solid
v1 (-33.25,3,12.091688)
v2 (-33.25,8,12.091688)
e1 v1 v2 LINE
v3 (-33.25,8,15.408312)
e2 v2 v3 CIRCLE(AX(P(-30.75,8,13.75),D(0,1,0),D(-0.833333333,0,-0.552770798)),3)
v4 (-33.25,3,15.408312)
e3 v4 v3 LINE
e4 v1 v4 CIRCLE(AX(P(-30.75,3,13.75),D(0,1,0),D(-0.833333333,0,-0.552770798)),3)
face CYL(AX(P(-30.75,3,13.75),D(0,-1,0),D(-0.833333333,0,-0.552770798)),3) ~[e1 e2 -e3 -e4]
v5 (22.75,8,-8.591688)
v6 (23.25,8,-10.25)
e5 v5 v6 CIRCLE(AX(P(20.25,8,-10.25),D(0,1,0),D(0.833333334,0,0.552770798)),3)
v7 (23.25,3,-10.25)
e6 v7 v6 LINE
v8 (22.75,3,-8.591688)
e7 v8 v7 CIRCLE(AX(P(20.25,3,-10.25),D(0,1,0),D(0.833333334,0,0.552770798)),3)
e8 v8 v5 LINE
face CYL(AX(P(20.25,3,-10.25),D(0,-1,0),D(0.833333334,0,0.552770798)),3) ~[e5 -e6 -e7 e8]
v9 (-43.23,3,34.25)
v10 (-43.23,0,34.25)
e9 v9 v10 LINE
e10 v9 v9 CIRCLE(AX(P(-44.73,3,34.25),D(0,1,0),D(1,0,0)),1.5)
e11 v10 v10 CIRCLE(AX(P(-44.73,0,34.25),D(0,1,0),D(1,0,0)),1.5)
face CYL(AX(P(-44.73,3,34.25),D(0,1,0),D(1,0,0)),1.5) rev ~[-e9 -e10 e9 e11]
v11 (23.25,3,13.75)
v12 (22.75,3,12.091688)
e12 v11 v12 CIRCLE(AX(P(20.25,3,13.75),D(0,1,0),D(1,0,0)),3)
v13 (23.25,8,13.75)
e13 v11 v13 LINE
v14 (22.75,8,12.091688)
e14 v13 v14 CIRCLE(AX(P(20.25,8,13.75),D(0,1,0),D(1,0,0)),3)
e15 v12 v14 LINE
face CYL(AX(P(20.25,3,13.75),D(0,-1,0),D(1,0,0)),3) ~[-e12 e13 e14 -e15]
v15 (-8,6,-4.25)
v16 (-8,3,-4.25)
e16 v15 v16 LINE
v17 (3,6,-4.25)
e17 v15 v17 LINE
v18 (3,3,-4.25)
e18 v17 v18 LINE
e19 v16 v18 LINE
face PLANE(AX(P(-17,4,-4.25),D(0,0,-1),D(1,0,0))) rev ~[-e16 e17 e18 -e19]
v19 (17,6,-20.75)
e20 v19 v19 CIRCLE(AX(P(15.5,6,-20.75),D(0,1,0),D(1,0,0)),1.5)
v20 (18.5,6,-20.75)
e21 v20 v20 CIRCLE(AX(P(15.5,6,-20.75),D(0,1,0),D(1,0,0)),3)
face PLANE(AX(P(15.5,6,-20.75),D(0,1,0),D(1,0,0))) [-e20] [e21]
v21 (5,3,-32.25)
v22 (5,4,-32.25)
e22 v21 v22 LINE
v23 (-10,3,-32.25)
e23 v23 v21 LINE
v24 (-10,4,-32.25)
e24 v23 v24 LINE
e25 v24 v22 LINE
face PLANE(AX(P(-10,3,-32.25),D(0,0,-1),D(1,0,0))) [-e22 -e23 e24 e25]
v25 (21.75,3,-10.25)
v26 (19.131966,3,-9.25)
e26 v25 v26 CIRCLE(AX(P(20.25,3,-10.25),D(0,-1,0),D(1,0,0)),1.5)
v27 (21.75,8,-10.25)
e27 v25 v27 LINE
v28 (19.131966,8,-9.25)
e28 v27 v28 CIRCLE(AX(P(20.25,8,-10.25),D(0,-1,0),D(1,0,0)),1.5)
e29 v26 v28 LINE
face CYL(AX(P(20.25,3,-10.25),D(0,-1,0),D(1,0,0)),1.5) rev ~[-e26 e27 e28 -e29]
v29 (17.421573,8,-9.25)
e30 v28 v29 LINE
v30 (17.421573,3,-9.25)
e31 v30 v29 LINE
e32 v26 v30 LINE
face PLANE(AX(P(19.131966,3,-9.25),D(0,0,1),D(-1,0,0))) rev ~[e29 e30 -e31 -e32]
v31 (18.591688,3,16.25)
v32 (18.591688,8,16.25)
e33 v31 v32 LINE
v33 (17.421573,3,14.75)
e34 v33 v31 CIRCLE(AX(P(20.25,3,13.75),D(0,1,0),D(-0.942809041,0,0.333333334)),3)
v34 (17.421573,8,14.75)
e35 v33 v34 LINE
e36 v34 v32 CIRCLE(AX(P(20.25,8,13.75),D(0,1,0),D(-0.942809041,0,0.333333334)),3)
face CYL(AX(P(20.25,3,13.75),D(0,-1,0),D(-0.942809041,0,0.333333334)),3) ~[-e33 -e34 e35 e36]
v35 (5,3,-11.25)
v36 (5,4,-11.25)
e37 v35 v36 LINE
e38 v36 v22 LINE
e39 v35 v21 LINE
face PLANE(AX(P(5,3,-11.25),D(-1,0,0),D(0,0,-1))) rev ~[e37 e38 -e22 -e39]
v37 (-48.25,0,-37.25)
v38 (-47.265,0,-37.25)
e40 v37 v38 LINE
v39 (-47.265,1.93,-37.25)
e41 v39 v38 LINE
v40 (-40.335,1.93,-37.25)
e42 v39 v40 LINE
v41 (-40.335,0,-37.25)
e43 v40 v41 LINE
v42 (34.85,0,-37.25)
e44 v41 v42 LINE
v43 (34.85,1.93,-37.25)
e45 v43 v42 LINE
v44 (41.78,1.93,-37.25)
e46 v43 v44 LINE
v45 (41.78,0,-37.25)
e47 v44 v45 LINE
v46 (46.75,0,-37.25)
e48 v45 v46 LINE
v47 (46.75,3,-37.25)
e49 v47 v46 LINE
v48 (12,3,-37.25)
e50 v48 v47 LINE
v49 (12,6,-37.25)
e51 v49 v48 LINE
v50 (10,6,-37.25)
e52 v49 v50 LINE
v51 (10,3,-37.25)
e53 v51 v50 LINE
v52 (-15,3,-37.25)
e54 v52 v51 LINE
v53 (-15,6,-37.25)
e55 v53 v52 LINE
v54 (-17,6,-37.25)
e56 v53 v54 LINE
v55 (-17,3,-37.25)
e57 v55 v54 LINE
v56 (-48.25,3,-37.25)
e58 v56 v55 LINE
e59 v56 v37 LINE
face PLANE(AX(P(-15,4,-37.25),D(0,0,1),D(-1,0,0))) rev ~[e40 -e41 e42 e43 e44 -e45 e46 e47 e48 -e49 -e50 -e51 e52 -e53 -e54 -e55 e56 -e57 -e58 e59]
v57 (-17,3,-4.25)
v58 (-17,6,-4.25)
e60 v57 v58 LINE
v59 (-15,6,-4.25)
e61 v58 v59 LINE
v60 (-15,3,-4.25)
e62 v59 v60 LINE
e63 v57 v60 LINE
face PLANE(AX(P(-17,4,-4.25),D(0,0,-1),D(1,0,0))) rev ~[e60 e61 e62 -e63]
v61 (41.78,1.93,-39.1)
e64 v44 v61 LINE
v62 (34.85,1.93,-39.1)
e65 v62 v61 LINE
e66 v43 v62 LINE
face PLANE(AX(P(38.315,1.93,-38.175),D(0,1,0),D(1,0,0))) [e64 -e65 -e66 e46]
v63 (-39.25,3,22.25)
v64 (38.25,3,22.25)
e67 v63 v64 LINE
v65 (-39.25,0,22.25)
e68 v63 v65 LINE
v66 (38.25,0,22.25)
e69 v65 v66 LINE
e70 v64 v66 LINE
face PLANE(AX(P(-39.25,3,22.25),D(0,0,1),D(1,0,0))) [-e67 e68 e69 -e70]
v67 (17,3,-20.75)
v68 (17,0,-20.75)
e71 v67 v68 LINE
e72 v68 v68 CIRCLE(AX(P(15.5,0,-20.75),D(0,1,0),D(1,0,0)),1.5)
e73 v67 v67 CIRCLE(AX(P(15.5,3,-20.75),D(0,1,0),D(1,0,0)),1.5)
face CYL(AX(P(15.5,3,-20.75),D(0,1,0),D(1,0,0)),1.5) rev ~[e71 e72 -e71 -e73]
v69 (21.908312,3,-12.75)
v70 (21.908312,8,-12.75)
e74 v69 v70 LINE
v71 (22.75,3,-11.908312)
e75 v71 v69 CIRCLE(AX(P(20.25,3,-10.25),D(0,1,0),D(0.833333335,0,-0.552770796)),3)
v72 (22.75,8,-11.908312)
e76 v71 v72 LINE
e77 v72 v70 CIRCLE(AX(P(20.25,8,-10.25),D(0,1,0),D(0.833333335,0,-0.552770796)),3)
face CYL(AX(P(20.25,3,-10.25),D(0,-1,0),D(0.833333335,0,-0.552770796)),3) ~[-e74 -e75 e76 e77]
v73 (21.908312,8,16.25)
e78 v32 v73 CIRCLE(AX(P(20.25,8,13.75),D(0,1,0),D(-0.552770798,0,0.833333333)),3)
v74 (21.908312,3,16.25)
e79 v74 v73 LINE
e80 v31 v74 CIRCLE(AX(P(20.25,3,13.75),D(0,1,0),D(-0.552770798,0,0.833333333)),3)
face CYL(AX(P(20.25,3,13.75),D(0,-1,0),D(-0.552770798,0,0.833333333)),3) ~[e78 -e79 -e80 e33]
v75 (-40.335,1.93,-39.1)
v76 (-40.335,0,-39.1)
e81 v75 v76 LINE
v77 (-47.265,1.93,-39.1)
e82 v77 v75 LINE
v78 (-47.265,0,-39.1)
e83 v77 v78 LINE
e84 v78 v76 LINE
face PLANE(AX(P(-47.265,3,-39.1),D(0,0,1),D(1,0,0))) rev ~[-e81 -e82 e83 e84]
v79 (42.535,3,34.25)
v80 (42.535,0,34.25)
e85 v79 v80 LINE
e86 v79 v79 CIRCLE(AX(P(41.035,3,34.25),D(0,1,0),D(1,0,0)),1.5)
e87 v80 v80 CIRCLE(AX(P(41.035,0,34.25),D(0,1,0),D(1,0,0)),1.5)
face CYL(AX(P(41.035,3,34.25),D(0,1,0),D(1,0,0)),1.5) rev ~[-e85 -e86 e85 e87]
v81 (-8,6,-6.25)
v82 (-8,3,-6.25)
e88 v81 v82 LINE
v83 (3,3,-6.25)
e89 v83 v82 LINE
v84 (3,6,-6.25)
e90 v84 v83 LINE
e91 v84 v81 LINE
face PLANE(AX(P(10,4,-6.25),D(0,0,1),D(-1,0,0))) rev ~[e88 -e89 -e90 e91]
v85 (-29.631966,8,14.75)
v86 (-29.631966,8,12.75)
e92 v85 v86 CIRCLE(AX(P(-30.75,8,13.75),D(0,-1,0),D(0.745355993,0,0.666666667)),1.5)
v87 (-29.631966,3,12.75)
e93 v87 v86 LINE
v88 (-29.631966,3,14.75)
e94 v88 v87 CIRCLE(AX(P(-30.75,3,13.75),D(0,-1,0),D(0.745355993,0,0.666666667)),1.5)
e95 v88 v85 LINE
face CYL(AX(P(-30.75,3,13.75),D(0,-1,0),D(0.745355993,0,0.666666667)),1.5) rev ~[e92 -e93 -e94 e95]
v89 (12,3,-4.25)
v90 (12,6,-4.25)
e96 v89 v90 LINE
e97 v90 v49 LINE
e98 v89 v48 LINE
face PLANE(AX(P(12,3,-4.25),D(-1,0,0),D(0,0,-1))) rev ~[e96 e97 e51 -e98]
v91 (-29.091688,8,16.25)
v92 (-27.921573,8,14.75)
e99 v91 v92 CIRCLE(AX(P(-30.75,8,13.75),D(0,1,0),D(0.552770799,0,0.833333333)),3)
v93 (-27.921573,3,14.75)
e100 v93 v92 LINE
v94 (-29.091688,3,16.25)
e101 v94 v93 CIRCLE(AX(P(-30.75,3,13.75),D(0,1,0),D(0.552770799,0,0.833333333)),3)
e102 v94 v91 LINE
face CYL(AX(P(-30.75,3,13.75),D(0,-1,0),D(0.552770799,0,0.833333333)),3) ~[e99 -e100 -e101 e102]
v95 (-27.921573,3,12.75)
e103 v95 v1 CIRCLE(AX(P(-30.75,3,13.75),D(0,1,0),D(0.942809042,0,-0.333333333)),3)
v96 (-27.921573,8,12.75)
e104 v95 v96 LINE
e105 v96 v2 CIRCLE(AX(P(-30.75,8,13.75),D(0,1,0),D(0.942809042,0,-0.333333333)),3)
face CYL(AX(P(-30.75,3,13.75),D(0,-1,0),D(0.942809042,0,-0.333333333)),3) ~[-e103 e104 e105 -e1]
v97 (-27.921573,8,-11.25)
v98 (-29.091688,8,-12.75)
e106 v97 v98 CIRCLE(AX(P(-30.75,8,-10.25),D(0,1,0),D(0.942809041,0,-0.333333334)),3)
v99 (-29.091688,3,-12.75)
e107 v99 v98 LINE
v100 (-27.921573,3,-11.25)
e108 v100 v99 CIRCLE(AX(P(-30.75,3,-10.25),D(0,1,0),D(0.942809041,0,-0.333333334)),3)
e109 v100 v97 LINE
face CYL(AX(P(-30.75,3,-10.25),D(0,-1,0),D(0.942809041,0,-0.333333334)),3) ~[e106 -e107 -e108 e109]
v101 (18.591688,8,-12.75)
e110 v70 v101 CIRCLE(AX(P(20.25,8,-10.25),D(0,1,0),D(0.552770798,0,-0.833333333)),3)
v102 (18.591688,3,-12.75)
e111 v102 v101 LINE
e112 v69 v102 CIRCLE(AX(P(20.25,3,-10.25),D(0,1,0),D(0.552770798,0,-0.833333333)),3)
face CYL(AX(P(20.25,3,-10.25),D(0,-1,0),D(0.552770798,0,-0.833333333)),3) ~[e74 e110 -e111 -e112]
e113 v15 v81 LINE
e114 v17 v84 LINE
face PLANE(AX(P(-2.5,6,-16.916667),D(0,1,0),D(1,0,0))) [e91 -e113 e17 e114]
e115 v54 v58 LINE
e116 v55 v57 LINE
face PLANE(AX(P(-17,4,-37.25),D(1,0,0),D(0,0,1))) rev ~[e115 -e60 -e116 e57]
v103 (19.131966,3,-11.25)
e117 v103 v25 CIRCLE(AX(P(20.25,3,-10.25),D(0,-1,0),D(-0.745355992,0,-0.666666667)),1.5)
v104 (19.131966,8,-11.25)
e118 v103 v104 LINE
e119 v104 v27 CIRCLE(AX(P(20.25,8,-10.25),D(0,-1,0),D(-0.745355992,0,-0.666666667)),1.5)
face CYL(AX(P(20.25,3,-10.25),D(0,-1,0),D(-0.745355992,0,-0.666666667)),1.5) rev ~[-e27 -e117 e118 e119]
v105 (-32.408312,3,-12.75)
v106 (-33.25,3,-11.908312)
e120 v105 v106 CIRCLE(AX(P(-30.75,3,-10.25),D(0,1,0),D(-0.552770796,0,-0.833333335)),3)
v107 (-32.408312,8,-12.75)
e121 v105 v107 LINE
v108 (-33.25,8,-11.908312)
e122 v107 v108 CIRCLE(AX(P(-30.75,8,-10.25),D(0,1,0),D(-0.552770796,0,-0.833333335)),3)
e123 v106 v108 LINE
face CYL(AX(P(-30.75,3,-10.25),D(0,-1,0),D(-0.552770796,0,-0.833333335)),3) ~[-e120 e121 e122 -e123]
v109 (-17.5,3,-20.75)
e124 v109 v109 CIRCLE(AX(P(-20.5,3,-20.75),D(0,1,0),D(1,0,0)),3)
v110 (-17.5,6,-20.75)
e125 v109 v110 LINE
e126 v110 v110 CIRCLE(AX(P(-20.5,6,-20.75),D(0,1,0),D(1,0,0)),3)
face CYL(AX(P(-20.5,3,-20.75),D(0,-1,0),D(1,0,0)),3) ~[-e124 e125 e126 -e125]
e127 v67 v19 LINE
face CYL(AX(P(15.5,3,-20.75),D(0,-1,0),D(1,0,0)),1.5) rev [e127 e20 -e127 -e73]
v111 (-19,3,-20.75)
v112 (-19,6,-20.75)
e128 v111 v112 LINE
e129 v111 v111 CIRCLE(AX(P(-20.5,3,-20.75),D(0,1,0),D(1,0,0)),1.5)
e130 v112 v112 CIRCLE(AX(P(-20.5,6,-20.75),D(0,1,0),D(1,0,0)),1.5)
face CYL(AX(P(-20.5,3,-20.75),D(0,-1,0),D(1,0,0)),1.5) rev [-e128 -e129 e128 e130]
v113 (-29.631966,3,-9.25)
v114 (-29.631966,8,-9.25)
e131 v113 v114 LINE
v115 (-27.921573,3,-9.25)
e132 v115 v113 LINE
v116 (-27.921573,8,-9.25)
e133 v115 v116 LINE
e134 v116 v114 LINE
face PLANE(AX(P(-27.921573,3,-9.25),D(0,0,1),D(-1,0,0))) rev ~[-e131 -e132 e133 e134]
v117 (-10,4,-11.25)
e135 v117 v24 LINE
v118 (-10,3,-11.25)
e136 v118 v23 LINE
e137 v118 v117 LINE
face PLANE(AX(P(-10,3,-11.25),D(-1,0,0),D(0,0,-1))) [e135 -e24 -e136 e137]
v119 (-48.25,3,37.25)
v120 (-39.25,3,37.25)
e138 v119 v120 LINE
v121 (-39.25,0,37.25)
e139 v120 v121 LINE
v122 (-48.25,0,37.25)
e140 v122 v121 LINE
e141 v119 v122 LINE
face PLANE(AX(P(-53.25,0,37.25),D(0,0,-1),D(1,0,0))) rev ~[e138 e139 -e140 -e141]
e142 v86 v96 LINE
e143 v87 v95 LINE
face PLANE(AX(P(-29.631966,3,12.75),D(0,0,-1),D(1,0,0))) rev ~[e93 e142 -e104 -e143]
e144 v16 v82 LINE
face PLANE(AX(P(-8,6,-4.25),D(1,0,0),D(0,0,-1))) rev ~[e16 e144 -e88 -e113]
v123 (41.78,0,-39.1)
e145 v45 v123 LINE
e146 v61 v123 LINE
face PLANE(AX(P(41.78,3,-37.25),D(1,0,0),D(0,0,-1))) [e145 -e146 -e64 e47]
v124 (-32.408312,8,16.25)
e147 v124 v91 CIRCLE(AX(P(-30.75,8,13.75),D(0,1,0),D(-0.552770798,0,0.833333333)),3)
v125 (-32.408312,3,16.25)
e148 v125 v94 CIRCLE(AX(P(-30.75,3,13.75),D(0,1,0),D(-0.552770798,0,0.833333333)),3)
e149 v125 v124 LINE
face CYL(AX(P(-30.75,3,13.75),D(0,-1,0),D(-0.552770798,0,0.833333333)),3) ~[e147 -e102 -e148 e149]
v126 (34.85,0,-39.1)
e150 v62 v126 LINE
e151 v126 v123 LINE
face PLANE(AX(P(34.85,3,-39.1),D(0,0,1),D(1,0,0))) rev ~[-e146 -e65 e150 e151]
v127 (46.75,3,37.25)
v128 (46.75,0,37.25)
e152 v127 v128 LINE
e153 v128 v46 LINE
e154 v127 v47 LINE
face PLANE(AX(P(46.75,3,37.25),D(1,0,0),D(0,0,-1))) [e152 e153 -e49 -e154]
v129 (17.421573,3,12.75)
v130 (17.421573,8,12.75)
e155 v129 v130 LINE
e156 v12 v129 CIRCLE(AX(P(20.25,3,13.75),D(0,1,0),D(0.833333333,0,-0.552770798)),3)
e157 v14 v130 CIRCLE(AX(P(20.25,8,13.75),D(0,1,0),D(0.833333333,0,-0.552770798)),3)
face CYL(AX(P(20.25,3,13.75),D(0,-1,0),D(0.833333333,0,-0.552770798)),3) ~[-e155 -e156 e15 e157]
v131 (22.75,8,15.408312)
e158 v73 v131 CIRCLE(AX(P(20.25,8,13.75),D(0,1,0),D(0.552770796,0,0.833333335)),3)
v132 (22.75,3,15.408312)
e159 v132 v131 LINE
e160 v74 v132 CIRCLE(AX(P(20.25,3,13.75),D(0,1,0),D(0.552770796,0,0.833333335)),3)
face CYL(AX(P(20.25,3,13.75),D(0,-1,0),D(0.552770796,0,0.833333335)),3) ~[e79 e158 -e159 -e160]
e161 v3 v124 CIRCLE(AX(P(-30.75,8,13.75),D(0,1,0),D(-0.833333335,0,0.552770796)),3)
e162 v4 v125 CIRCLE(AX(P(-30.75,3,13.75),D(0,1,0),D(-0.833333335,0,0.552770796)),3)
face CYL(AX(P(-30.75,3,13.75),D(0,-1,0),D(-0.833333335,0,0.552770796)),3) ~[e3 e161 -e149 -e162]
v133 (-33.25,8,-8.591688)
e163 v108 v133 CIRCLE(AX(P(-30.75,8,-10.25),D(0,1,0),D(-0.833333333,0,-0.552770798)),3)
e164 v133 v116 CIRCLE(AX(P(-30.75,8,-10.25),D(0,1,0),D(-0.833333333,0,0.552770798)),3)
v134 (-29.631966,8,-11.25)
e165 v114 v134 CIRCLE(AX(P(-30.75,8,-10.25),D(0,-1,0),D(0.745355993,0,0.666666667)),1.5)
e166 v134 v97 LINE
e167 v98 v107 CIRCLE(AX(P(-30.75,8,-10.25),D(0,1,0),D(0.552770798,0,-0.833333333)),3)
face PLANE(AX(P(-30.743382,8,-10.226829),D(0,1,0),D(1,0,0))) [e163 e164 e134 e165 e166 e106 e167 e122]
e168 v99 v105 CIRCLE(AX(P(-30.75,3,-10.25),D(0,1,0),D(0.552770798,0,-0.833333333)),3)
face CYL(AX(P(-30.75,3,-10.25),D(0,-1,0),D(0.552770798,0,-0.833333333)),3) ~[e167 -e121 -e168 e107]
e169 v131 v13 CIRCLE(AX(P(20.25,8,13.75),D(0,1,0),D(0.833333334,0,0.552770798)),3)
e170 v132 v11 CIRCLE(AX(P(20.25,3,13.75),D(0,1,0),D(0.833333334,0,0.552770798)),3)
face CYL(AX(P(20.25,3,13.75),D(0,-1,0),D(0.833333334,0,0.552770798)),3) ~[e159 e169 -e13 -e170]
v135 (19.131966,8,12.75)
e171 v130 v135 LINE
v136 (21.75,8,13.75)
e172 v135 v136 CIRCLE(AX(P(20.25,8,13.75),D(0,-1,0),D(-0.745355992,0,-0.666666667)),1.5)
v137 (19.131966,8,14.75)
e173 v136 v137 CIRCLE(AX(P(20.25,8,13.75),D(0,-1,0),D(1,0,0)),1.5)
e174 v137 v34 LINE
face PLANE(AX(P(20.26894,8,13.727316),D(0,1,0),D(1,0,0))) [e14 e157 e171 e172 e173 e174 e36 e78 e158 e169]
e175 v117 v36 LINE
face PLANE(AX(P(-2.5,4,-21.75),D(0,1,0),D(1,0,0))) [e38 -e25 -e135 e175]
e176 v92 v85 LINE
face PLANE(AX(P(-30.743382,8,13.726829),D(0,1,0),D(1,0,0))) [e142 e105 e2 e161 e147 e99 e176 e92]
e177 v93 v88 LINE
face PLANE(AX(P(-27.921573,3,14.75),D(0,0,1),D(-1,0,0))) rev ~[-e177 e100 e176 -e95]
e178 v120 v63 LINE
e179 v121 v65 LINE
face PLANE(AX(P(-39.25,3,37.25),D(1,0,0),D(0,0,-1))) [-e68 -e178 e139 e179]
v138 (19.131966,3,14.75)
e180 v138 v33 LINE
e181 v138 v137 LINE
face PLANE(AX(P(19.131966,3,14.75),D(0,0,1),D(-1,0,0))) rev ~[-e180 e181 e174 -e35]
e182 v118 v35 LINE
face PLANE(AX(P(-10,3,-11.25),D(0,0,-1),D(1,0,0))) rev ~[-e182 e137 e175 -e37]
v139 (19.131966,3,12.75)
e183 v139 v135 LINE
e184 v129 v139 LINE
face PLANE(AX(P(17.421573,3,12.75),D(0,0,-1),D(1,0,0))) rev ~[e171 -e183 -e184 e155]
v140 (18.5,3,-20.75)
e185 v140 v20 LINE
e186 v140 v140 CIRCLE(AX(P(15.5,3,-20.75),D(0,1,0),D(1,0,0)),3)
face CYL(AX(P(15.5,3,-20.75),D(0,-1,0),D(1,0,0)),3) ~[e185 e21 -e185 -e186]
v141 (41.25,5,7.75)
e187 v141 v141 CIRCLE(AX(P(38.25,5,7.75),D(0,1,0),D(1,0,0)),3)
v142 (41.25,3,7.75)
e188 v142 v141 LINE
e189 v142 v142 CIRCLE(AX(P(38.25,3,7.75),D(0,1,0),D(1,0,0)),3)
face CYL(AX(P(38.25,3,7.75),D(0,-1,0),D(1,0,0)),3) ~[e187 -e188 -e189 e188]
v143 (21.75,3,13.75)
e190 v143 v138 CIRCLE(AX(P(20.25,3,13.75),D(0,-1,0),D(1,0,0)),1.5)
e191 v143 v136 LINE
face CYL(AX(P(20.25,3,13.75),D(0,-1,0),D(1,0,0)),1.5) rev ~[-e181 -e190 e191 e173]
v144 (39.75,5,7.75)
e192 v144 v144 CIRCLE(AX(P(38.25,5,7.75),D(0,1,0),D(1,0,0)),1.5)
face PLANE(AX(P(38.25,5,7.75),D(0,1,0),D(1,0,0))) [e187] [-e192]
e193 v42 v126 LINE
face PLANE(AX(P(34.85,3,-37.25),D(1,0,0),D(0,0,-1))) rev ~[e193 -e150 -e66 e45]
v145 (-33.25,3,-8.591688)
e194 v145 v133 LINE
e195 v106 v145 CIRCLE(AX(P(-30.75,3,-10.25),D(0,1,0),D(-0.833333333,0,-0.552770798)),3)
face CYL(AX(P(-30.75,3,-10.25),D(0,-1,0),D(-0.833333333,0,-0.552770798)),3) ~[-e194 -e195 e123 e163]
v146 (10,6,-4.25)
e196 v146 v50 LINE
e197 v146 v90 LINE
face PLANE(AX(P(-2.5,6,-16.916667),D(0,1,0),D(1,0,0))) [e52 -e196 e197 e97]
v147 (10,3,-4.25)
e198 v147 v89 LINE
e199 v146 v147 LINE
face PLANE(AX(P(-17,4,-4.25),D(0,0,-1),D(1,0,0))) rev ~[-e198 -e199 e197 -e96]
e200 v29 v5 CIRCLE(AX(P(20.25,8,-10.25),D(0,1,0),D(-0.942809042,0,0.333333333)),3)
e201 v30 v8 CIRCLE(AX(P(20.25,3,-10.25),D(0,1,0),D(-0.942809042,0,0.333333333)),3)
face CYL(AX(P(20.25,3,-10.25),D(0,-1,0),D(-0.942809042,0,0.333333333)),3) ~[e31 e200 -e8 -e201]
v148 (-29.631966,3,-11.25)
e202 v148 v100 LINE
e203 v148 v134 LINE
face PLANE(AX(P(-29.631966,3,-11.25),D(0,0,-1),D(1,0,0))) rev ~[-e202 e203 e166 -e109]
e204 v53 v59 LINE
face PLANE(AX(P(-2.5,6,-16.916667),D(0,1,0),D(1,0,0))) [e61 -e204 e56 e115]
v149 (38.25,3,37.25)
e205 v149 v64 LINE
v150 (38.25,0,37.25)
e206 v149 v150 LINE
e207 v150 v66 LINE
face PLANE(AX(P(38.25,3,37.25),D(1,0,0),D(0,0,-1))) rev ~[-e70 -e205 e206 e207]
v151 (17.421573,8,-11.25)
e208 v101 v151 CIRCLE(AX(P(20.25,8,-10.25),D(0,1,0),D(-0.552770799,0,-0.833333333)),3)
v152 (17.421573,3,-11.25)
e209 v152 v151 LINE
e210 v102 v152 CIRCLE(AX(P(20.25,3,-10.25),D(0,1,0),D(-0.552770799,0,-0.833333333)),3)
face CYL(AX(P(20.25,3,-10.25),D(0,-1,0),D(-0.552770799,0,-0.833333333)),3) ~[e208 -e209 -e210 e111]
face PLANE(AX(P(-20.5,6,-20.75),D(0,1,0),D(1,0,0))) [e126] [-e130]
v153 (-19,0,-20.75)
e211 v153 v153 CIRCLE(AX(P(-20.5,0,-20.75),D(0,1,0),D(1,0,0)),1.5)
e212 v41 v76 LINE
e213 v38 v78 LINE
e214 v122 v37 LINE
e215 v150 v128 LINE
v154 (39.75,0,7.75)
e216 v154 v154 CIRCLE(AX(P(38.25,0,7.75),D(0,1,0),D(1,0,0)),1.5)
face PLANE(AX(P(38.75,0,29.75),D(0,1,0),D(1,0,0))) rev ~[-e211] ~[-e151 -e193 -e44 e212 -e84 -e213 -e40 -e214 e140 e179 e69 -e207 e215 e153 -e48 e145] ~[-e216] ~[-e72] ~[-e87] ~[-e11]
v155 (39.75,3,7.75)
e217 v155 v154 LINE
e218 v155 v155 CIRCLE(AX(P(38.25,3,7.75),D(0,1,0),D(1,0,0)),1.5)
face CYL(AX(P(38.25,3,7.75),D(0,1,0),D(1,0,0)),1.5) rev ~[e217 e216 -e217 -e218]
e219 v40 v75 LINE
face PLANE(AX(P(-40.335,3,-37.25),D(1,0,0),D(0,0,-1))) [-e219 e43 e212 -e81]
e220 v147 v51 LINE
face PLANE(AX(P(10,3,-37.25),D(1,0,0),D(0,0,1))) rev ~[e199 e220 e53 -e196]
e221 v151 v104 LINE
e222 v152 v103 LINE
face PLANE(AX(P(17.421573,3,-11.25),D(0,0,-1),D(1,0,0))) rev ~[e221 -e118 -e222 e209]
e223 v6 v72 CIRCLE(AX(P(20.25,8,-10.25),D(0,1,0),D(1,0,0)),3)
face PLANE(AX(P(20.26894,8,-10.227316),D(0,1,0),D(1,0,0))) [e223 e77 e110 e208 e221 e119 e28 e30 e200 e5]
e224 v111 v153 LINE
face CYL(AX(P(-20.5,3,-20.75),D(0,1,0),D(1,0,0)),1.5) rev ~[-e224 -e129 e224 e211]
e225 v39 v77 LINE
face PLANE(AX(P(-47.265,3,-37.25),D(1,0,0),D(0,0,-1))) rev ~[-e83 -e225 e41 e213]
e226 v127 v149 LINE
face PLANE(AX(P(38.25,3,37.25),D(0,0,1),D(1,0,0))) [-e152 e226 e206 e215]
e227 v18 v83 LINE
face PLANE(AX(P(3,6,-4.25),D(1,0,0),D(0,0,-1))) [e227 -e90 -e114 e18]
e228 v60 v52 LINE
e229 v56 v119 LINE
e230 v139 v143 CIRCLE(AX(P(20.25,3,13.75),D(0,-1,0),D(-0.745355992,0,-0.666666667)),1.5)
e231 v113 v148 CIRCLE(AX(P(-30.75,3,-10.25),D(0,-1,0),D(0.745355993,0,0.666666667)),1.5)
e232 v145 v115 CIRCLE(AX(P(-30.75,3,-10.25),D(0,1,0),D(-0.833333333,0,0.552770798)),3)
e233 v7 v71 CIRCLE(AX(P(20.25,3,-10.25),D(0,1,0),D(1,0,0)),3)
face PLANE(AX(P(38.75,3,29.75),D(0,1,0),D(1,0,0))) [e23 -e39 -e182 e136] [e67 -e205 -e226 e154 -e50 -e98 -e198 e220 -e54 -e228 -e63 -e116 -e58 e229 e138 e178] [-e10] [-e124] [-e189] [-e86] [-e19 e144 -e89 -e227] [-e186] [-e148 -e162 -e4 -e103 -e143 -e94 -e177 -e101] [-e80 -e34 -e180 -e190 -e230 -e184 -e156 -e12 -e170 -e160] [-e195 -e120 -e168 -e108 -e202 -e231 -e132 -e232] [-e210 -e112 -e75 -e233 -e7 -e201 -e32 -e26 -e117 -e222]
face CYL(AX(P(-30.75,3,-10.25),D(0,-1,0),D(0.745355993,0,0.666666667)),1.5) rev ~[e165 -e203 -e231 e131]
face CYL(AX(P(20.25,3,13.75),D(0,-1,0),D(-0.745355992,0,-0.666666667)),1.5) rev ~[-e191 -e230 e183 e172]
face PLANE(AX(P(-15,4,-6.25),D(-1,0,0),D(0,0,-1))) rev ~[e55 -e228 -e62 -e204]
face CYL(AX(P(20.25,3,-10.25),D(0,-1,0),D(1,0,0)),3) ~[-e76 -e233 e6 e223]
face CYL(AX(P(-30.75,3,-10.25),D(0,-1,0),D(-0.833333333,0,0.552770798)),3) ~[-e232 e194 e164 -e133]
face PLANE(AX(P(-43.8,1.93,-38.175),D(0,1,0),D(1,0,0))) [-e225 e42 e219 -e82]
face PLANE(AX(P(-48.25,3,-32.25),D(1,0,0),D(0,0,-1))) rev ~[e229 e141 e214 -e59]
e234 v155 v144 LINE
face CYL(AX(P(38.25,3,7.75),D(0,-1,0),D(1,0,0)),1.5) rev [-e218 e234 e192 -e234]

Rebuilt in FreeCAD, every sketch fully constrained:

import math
import FreeCAD as App
import Part
import Sketcher

V = App.Vector
Q = App.Units.Quantity


def add_polygon(sketch, points):
    """Adds a closed chain of lines whose ends are joined by coincident constraints."""
    first, n = sketch.GeometryCount, len(points)
    for a, b in zip(points, points[1:] + points[:1]):
        sketch.addGeometry(Part.LineSegment(App.Vector(*a, 0), App.Vector(*b, 0)), False)
    for i in range(n):
        sketch.addConstraint(Sketcher.Constraint("Coincident", first + i, 2, first + (i + 1) % n, 1))

doc = App.newDocument("Part")
body = doc.addObject("PartDesign::Body", "Body")

# Sketch on XZ plane
sketch1 = body.newObject("Sketcher::SketchObject", "Sketch")
sketch1.AttachmentSupport = (doc.getObject("XZ_Plane"), [""])
sketch1.MapMode = "FlatFace"
add_polygon(sketch1, [(-53, -37), (-53, 37), (53, 37), (53, -37)])  # lines 0-3
sketch1.addConstraint([
    Sketcher.Constraint("Vertical", 0),
    Sketcher.Constraint("Horizontal", 1),
    Sketcher.Constraint("Vertical", 2),
    Sketcher.Constraint("Horizontal", 3),
    Sketcher.Constraint("Symmetric", 0, 2, 2, 2, -1, 1),
    Sketcher.Constraint("DistanceX", 1, 1, 1, 2, Q("106.5 mm")),
    Sketcher.Constraint("DistanceY", 0, 1, 0, 2, Q("74.5 mm")),
])
pad1 = body.newObject("PartDesign::Pad", "Pad")
pad1.Profile = sketch1
pad1.Length = 3
pad1.Reversed = True

# Sketch on XZ plane
sketch2 = body.newObject("Sketcher::SketchObject", "Sketch001")
sketch2.AttachmentSupport = (doc.getObject("XZ_Plane"), [""])
sketch2.MapMode = "FlatFace"
sketch2.AttachmentOffset = App.Placement(V(0, 0, -3), App.Rotation())
add_polygon(sketch2, [(-47.3, -39.1), (-47.3, -37.2), (-40.3, -37.2), (-40.3, -39.1)])  # lines 0-3
add_polygon(sketch2, [(34.9, -39.1), (34.9, -37.2), (41.8, -37.2), (41.8, -39.1)])  # lines 4-7
sketch2.addConstraint([
    Sketcher.Constraint("Vertical", 0),
    Sketcher.Constraint("Horizontal", 1),
    Sketcher.Constraint("Vertical", 2),
    Sketcher.Constraint("Horizontal", 3),
    Sketcher.Constraint("Vertical", 4),
    Sketcher.Constraint("Horizontal", 5),
    Sketcher.Constraint("Vertical", 6),
    Sketcher.Constraint("Horizontal", 7),
    Sketcher.Constraint("Horizontal", 1, 2, 4, 2),
    Sketcher.Constraint("Horizontal", 3, 2, 6, 2),
    Sketcher.Constraint("Equal", 3, 5),
    Sketcher.Constraint("DistanceX", 1, 1, 1, 2, Q("6.93 mm")),
    Sketcher.Constraint("DistanceY", 0, 1, 0, 2, Q("1.85 mm")),
    Sketcher.Constraint("DistanceY", 2, 2, -1, 1, Q("39.1 mm")),
    Sketcher.Constraint("DistanceX", -1, 1, 4, 2, Q("34.85 mm")),
    Sketcher.Constraint("DistanceX", 0, 2, -1, 1, Q("47.265 mm")),
])
pad2 = body.newObject("PartDesign::Pad", "Pad001")
pad2.Profile = sketch2
pad2.Length = 3

# Sketch on XZ plane
sketch3 = body.newObject("Sketcher::SketchObject", "Sketch002")
sketch3.AttachmentSupport = (doc.getObject("XZ_Plane"), [""])
sketch3.MapMode = "FlatFace"
sketch3.AttachmentOffset = App.Placement(V(0, 0, -3), App.Rotation())
add_polygon(sketch3, [(-47.3, -39.1), (-47.3, -37.2), (-40.3, -37.2), (-40.3, -39.1)])  # lines 0-3
add_polygon(sketch3, [(34.9, -39.1), (34.9, -37.2), (41.8, -37.2), (41.8, -39.1)])  # lines 4-7
sketch3.addConstraint([
    Sketcher.Constraint("Vertical", 0),
    Sketcher.Constraint("Horizontal", 1),
    Sketcher.Constraint("Vertical", 2),
    Sketcher.Constraint("Horizontal", 3),
    Sketcher.Constraint("Vertical", 4),
    Sketcher.Constraint("Horizontal", 5),
    Sketcher.Constraint("Vertical", 6),
    Sketcher.Constraint("Horizontal", 7),
    Sketcher.Constraint("Horizontal", 1, 2, 4, 2),
    Sketcher.Constraint("Horizontal", 3, 2, 6, 2),
    Sketcher.Constraint("Equal", 3, 5),
    Sketcher.Constraint("DistanceX", 1, 1, 1, 2, Q("6.93 mm")),
    Sketcher.Constraint("DistanceY", 0, 1, 0, 2, Q("1.85 mm")),
    Sketcher.Constraint("DistanceY", 2, 2, -1, 1, Q("39.1 mm")),
    Sketcher.Constraint("DistanceX", -1, 1, 4, 2, Q("34.85 mm")),
    Sketcher.Constraint("DistanceX", 0, 2, -1, 1, Q("47.265 mm")),
])
pocket1 = body.newObject("PartDesign::Pocket", "Pocket")
pocket1.Profile = sketch3
pocket1.Length = 1.07
pocket1.Reversed = True

# Sketch on XZ plane
sketch4 = body.newObject("Sketcher::SketchObject", "Sketch003")
sketch4.AttachmentSupport = (doc.getObject("XZ_Plane"), [""])
sketch4.MapMode = "FlatFace"
sketch4.AttachmentOffset = App.Placement(V(0, 0, -3), App.Rotation())
add_polygon(sketch4, [(-53, -32), (-53, 32), (-48, 32), (-48, -32)])  # lines 0-3
add_polygon(sketch4, [(-39, 22), (-39, 37), (39, 37), (39, 22)])  # lines 4-7
sketch4.addConstraint([
    Sketcher.Constraint("Vertical", 0),
    Sketcher.Constraint("Horizontal", 1),
    Sketcher.Constraint("Vertical", 2),
    Sketcher.Constraint("Horizontal", 3),
    Sketcher.Constraint("Vertical", 4),
    Sketcher.Constraint("Horizontal", 5),
    Sketcher.Constraint("Vertical", 6),
    Sketcher.Constraint("Horizontal", 7),
    Sketcher.Constraint("DistanceX", 1, 1, 1, 2, Q("5 mm")),
    Sketcher.Constraint("DistanceY", 4, 1, 4, 2, Q("15 mm")),
    Sketcher.Constraint("DistanceX", 5, 1, 5, 2, Q("78.5 mm")),
    Sketcher.Constraint("DistanceY", 0, 1, 0, 2, Q("64.5 mm")),
    Sketcher.Constraint("DistanceX", 1, 2, 4, 2, Q("9 mm")),
    Sketcher.Constraint("DistanceY", 1, 2, 4, 2, Q("5 mm")),
    Sketcher.Constraint("DistanceX", 0, 2, -1, 1, Q("53.25 mm")),
    Sketcher.Constraint("DistanceY", -1, 1, 0, 2, Q("32.25 mm")),
])
pocket2 = body.newObject("PartDesign::Pocket", "Pocket001")
pocket2.Profile = sketch4
pocket2.Length = 3
pocket2.Reversed = True

# Sketch on XZ plane
sketch5 = body.newObject("Sketcher::SketchObject", "Sketch004")
sketch5.AttachmentSupport = (doc.getObject("XZ_Plane"), [""])
sketch5.MapMode = "FlatFace"
sketch5.AttachmentOffset = App.Placement(V(0, 0, -3), App.Rotation())
sketch5.addGeometry([
    Part.Circle(V(-53.2, 37.2, 0), V(0, 0, 1), 3.5),
    Part.Circle(V(53.2, 37.2, 0), V(0, 0, 1), 3.5),
    Part.Circle(V(53.2, -37.2, 0), V(0, 0, 1), 3.5),
    Part.Circle(V(-53.2, -37.2, 0), V(0, 0, 1), 3.5),
], False)
sketch5.addConstraint([
    Sketcher.Constraint("Equal", 0, 1),
    Sketcher.Constraint("Equal", 1, 2),
    Sketcher.Constraint("Equal", 2, 3),
    Sketcher.Constraint("Symmetric", 0, 3, 2, 3, -1, 1),
    Sketcher.Constraint("Symmetric", 1, 3, 3, 3, -1, 1),
    Sketcher.Constraint("Symmetric", 0, 3, 1, 3, -2),
    Sketcher.Constraint("Diameter", 0, Q("7 mm")),
    Sketcher.Constraint("DistanceX", 0, 3, 1, 3, Q("106.5 mm")),
    Sketcher.Constraint("DistanceY", 2, 3, 1, 3, Q("74.5 mm")),
])
pocket3 = body.newObject("PartDesign::Pocket", "Pocket002")
pocket3.Profile = sketch5
pocket3.Length = 3
pocket3.Reversed = True

# Sketch on XZ plane
sketch6 = body.newObject("Sketcher::SketchObject", "Sketch005")
sketch6.AttachmentSupport = (doc.getObject("XZ_Plane"), [""])
sketch6.MapMode = "FlatFace"
sketch6.AttachmentOffset = App.Placement(V(0, 0, -3), App.Rotation())
sketch6.addGeometry([
    Part.ArcOfCircle(Part.Circle(V(-30.8, -10.3, 0), V(0, 0, 1), 3), math.radians(-146), math.radians(-124)),  # 0
    Part.ArcOfCircle(Part.Circle(V(-30.8, -10.2, 0), V(0, 0, 1), 3), math.radians(146), math.radians(214)),  # 1
    Part.ArcOfCircle(Part.Circle(V(-30.8, -10.2, 0), V(0, 0, 1), 3), math.radians(19), math.radians(146)),  # 2
    Part.LineSegment(V(-27.9, -9.2, 0), V(-29.6, -9.2, 0)),  # 3
    Part.ArcOfCircle(Part.Circle(V(-30.8, -10.2, 0), V(0, 0, 1), 1.5), math.radians(42), math.radians(318)),  # 4
    Part.LineSegment(V(-29.6, -11.2, 0), V(-27.9, -11.2, 0)),  # 5
    Part.ArcOfCircle(Part.Circle(V(-30.8, -10.2, 0), V(0, 0, 1), 3), math.radians(-56), math.radians(-19)),  # 6
    Part.ArcOfCircle(Part.Circle(V(-30.8, -10.3, 0), V(0, 0, 1), 3), math.radians(-124), math.radians(-56)),  # 7
    Part.ArcOfCircle(Part.Circle(V(-30.8, 13.7, 0), V(0, 0, 1), 3), math.radians(-146), math.radians(-19)),  # 8
    Part.ArcOfCircle(Part.Circle(V(-30.8, 13.8, 0), V(0, 0, 1), 3), math.radians(146), math.radians(214)),  # 9
    Part.ArcOfCircle(Part.Circle(V(-30.8, 13.8, 0), V(0, 0, 1), 3), math.radians(124), math.radians(146)),  # 10
    Part.ArcOfCircle(Part.Circle(V(-30.8, 13.8, 0), V(0, 0, 1), 3), math.radians(56), math.radians(124)),  # 11
    Part.ArcOfCircle(Part.Circle(V(-30.8, 13.7, 0), V(0, 0, 1), 3), math.radians(19), math.radians(56)),  # 12
    Part.LineSegment(V(-27.9, 14.8, 0), V(-29.6, 14.8, 0)),  # 13
    Part.ArcOfCircle(Part.Circle(V(-30.8, 13.8, 0), V(0, 0, 1), 1.5), math.radians(42), math.radians(318)),  # 14
    Part.LineSegment(V(-29.6, 12.8, 0), V(-27.9, 12.8, 0)),  # 15
    Part.ArcOfCircle(Part.Circle(V(20.2, 13.7, 0), V(0, 0, 1), 3), math.radians(-161), math.radians(-34)),  # 16
    Part.LineSegment(V(17.4, 12.8, 0), V(19.1, 12.8, 0)),  # 17
    Part.ArcOfCircle(Part.Circle(V(20.2, 13.8, 0), V(0, 0, 1), 1.5), math.radians(-138), math.radians(0)),  # 18
    Part.ArcOfCircle(Part.Circle(V(20.2, 13.7, 0), V(0, 0, 1), 1.5), math.radians(0), math.radians(138)),  # 19
    Part.LineSegment(V(19.1, 14.8, 0), V(17.4, 14.8, 0)),  # 20
    Part.ArcOfCircle(Part.Circle(V(20.3, 13.7, 0), V(0, 0, 1), 3), math.radians(124), math.radians(161)),  # 21
    Part.ArcOfCircle(Part.Circle(V(20.2, 13.8, 0), V(0, 0, 1), 3), math.radians(56), math.radians(124)),  # 22
    Part.ArcOfCircle(Part.Circle(V(20.3, 13.8, 0), V(0, 0, 1), 3), math.radians(34), math.radians(56)),  # 23
    Part.ArcOfCircle(Part.Circle(V(20.2, 13.7, 0), V(0, 0, 1), 3), math.radians(0), math.radians(34)),  # 24
    Part.ArcOfCircle(Part.Circle(V(20.2, 13.8, 0), V(0, 0, 1), 3), math.radians(-34), math.radians(0)),  # 25
    Part.ArcOfCircle(Part.Circle(V(20.3, -10.2, 0), V(0, 0, 1), 3), math.radians(-161), math.radians(-124)),  # 26
    Part.LineSegment(V(17.4, -11.2, 0), V(19.1, -11.2, 0)),  # 27
    Part.ArcOfCircle(Part.Circle(V(20.2, -10.2, 0), V(0, 0, 1), 1.5), math.radians(-138), math.radians(0)),  # 28
    Part.ArcOfCircle(Part.Circle(V(20.2, -10.3, 0), V(0, 0, 1), 1.5), math.radians(0), math.radians(138)),  # 29
    Part.LineSegment(V(19.1, -9.2, 0), V(17.4, -9.2, 0)),  # 30
    Part.ArcOfCircle(Part.Circle(V(20.2, -10.2, 0), V(0, 0, 1), 3), math.radians(34), math.radians(161)),  # 31
    Part.ArcOfCircle(Part.Circle(V(20.2, -10.3, 0), V(0, 0, 1), 3), math.radians(0), math.radians(34)),  # 32
    Part.ArcOfCircle(Part.Circle(V(20.2, -10.2, 0), V(0, 0, 1), 3), math.radians(-34), math.radians(0)),  # 33
    Part.ArcOfCircle(Part.Circle(V(20.3, -10.3, 0), V(0, 0, 1), 3), math.radians(-56), math.radians(-34)),  # 34
    Part.ArcOfCircle(Part.Circle(V(20.2, -10.3, 0), V(0, 0, 1), 3), math.radians(-124), math.radians(-56)),  # 35
], False)
sketch6.addConstraint([
    Sketcher.Constraint("Tangent", 0, 1, 1, 2),
    Sketcher.Constraint("Tangent", 1, 1, 2, 2),
    Sketcher.Constraint("Coincident", 2, 1, 3, 1),
    Sketcher.Constraint("Coincident", 3, 2, 4, 1),
    Sketcher.Constraint("Coincident", 4, 2, 5, 1),
    Sketcher.Constraint("Coincident", 5, 2, 6, 2),
    Sketcher.Constraint("Tangent", 6, 1, 7, 2),
    Sketcher.Constraint("Tangent", 7, 1, 0, 2),
    Sketcher.Constraint("Tangent", 8, 1, 9, 2),
    Sketcher.Constraint("Tangent", 9, 1, 10, 2),
    Sketcher.Constraint("Tangent", 10, 1, 11, 2),
    Sketcher.Constraint("Tangent", 11, 1, 12, 2),
    Sketcher.Constraint("Coincident", 12, 1, 13, 1),
    Sketcher.Constraint("Coincident", 13, 2, 14, 1),
    Sketcher.Constraint("Coincident", 14, 2, 15, 1),
    Sketcher.Constraint("Coincident", 15, 2, 8, 2),
    Sketcher.Constraint("Coincident", 16, 1, 17, 1),
    Sketcher.Constraint("Coincident", 17, 2, 18, 1),
    Sketcher.Constraint("Tangent", 18, 2, 19, 1),
    Sketcher.Constraint("Coincident", 19, 2, 20, 1),
    Sketcher.Constraint("Coincident", 20, 2, 21, 2),
    Sketcher.Constraint("Tangent", 21, 1, 22, 2),
    Sketcher.Constraint("Tangent", 22, 1, 23, 2),
    Sketcher.Constraint("Tangent", 23, 1, 24, 2),
    Sketcher.Constraint("Tangent", 24, 1, 25, 2),
    Sketcher.Constraint("Tangent", 25, 1, 16, 2),
    Sketcher.Constraint("Coincident", 26, 1, 27, 1),
    Sketcher.Constraint("Coincident", 27, 2, 28, 1),
    Sketcher.Constraint("Tangent", 28, 2, 29, 1),
    Sketcher.Constraint("Coincident", 29, 2, 30, 1),
    Sketcher.Constraint("Coincident", 30, 2, 31, 2),
    Sketcher.Constraint("Tangent", 31, 1, 32, 2),
    Sketcher.Constraint("Tangent", 32, 1, 33, 2),
    Sketcher.Constraint("Tangent", 33, 1, 34, 2),
    Sketcher.Constraint("Tangent", 34, 1, 35, 2),
    Sketcher.Constraint("Tangent", 35, 1, 26, 2),
    Sketcher.Constraint("Horizontal", 3),
    Sketcher.Constraint("Horizontal", 5),
    Sketcher.Constraint("Horizontal", 13),
    Sketcher.Constraint("Horizontal", 15),
    Sketcher.Constraint("Horizontal", 17),
    Sketcher.Constraint("Horizontal", 20),
    Sketcher.Constraint("Horizontal", 27),
    Sketcher.Constraint("Horizontal", 30),
    Sketcher.Constraint("Coincident", 2, 3, 0, 3),
    Sketcher.Constraint("Coincident", 4, 3, 0, 3),
    Sketcher.Constraint("Coincident", 6, 3, 0, 3),
    Sketcher.Constraint("Coincident", 10, 3, 8, 3),
    Sketcher.Constraint("Coincident", 12, 3, 8, 3),
    Sketcher.Constraint("Coincident", 14, 3, 8, 3),
    Sketcher.Constraint("Coincident", 18, 3, 16, 3),
    Sketcher.Constraint("Coincident", 21, 3, 16, 3),
    Sketcher.Constraint("Coincident", 23, 3, 16, 3),
    Sketcher.Constraint("Coincident", 28, 3, 26, 3),
    Sketcher.Constraint("Coincident", 31, 3, 26, 3),
    Sketcher.Constraint("Coincident", 33, 3, 26, 3),
    Sketcher.Constraint("Equal", 7, 8),
    Sketcher.Constraint("Equal", 4, 14),
    Sketcher.Constraint("Equal", 12, 16),
    Sketcher.Constraint("Equal", 14, 18),
    Sketcher.Constraint("Equal", 18, 19),
    Sketcher.Constraint("Equal", 16, 21),
    Sketcher.Constraint("Equal", 25, 26),
    Sketcher.Constraint("Equal", 19, 28),
    Sketcher.Constraint("Equal", 28, 29),
    Sketcher.Constraint("Equal", 26, 31),
    Sketcher.Constraint("Horizontal", 14, 3, 16, 3),
    Sketcher.Constraint("Horizontal", 7, 3, 26, 3),
    Sketcher.Constraint("Horizontal", 6, 1, 7, 1),
    Sketcher.Constraint("Horizontal", 10, 1, 11, 1),
    Sketcher.Constraint("Horizontal", 15, 2, 16, 1),
    Sketcher.Constraint("Horizontal", 25, 3, 18, 2),
    Sketcher.Constraint("Horizontal", 13, 2, 19, 2),
    Sketcher.Constraint("Horizontal", 11, 1, 21, 1),
    Sketcher.Constraint("Horizontal", 21, 1, 22, 1),
    Sketcher.Constraint("Horizontal", 9, 1, 23, 1),
    Sketcher.Constraint("Horizontal", 18, 2, 24, 1),
    Sketcher.Constraint("Horizontal", 8, 1, 25, 1),
    Sketcher.Constraint("Horizontal", 5, 2, 26, 1),
    Sketcher.Constraint("Horizontal", 35, 3, 28, 2),
    Sketcher.Constraint("Horizontal", 3, 2, 29, 2),
    Sketcher.Constraint("Horizontal", 1, 1, 31, 1),
    Sketcher.Constraint("Horizontal", 28, 2, 32, 1),
    Sketcher.Constraint("Horizontal", 0, 1, 33, 1),
    Sketcher.Constraint("Horizontal", 7, 1, 34, 1),
    Sketcher.Constraint("Horizontal", 34, 1, 35, 1),
    Sketcher.Constraint("Vertical", 7, 3, 8, 3),
    Sketcher.Constraint("Vertical", 25, 3, 26, 3),
    Sketcher.Constraint("Vertical", 0, 1, 1, 1),
    Sketcher.Constraint("Vertical", 3, 2, 4, 2),
    Sketcher.Constraint("Vertical", 1, 1, 8, 1),
    Sketcher.Constraint("Vertical", 8, 1, 9, 1),
    Sketcher.Constraint("Vertical", 7, 1, 10, 1),
    Sketcher.Constraint("Vertical", 5, 2, 12, 1),
    Sketcher.Constraint("Vertical", 13, 2, 14, 2),
    Sketcher.Constraint("Radius", 0, Q("3 mm")),
    Sketcher.Constraint("Radius", 4, Q("1.5 mm")),
    Sketcher.Constraint("DistanceX", 0, 3, -1, 1, Q("30.75 mm")),
    Sketcher.Constraint("DistanceY", 0, 3, -1, 1, Q("10.25 mm")),
    Sketcher.Constraint("DistanceY", -1, 1, 8, 3, Q("13.75 mm")),
    Sketcher.Constraint("DistanceX", -1, 1, 16, 3, Q("20.25 mm")),
    Sketcher.Constraint("DistanceX", 0, 1, -1, 1, Q("33.25 mm")),
    Sketcher.Constraint("DistanceY", 2, 1, -1, 1, Q("9.25 mm")),
    Sketcher.Constraint("DistanceY", 6, 1, -1, 1, Q("12.75 mm")),
])
pad3 = body.newObject("PartDesign::Pad", "Pad002")
pad3.Profile = sketch6
pad3.Length = 5
pad3.Reversed = True

# Sketch on XZ plane
sketch7 = body.newObject("Sketcher::SketchObject", "Sketch006")
sketch7.AttachmentSupport = (doc.getObject("XZ_Plane"), [""])
sketch7.MapMode = "FlatFace"
sketch7.AttachmentOffset = App.Placement(V(0, 0, -3), App.Rotation())
sketch7.addGeometry([
    Part.Circle(V(38.2, 7.8, 0), V(0, 0, 1), 3),
    Part.Circle(V(38.2, 7.8, 0), V(0, 0, 1), 1.5),
], False)
sketch7.addConstraint([
    Sketcher.Constraint("Coincident", 1, 3, 0, 3),
    Sketcher.Constraint("Diameter", 0, Q("6 mm")),
    Sketcher.Constraint("Diameter", 1, Q("3 mm")),
    Sketcher.Constraint("DistanceX", -1, 1, 0, 3, Q("38.25 mm")),
    Sketcher.Constraint("DistanceY", -1, 1, 0, 3, Q("7.75 mm")),
])
pad4 = body.newObject("PartDesign::Pad", "Pad003")
pad4.Profile = sketch7
pad4.Length = 2
pad4.Reversed = True

# Sketch on XZ plane
sketch8 = body.newObject("Sketcher::SketchObject", "Sketch007")
sketch8.AttachmentSupport = (doc.getObject("XZ_Plane"), [""])
sketch8.MapMode = "FlatFace"
sketch8.AttachmentOffset = App.Placement(V(0, 0, -3), App.Rotation())
add_polygon(sketch8, [(-10, -32.2), (-10, -11.2), (5, -11.2), (5, -32.2)])  # lines 0-3
add_polygon(sketch8, [(-15, -6.2), (-15, -37.2), (-17, -37.2), (-17, -4.2), (12, -4.2), (12, -37.2), (10, -37.2), (10, -6.2)])  # lines 4-11
sketch8.addConstraint([
    Sketcher.Constraint("Vertical", 0),
    Sketcher.Constraint("Horizontal", 1),
    Sketcher.Constraint("Vertical", 2),
    Sketcher.Constraint("Horizontal", 3),
    Sketcher.Constraint("Vertical", 4),
    Sketcher.Constraint("Horizontal", 5),
    Sketcher.Constraint("Vertical", 6),
    Sketcher.Constraint("Horizontal", 7),
    Sketcher.Constraint("Vertical", 8),
    Sketcher.Constraint("Horizontal", 9),
    Sketcher.Constraint("Vertical", 10),
    Sketcher.Constraint("Horizontal", 11),
    Sketcher.Constraint("Horizontal", 5, 2, 8, 2),
    Sketcher.Constraint("Equal", 5, 9),
    Sketcher.Constraint("DistanceX", 1, 1, 1, 2, Q("15 mm")),
    Sketcher.Constraint("DistanceX", 5, 2, 5, 1, Q("2 mm")),
    Sketcher.Constraint("DistanceX", 7, 1, 7, 2, Q("29 mm")),
    Sketcher.Constraint("DistanceY", 0, 1, 0, 2, Q("21 mm")),
    Sketcher.Constraint("DistanceY", 4, 2, 4, 1, Q("31 mm")),
    Sketcher.Constraint("DistanceY", 6, 1, 6, 2, Q("33 mm")),
    Sketcher.Constraint("DistanceX", 0, 2, -1, 1, Q("10 mm")),
    Sketcher.Constraint("DistanceX", 4, 2, -1, 1, Q("15 mm")),
    Sketcher.Constraint("DistanceY", 4, 2, 3, 2, Q("5 mm")),
    Sketcher.Constraint("DistanceY", 0, 2, -1, 1, Q("11.25 mm")),
])
pad5 = body.newObject("PartDesign::Pad", "Pad004")
pad5.Profile = sketch8
pad5.Length = 1
pad5.Reversed = True

# Sketch on XZ plane
sketch9 = body.newObject("Sketcher::SketchObject", "Sketch008")
sketch9.AttachmentSupport = (doc.getObject("XZ_Plane"), [""])
sketch9.MapMode = "FlatFace"
sketch9.AttachmentOffset = App.Placement(V(0, 0, -4), App.Rotation())
add_polygon(sketch9, [(-15, -37.2), (-17, -37.2), (-17, -4.2), (12, -4.2), (12, -37.2), (10, -37.2), (10, -6.2), (-15, -6.2)])  # lines 0-7
sketch9.addConstraint([
    Sketcher.Constraint("Horizontal", 0),
    Sketcher.Constraint("Vertical", 1),
    Sketcher.Constraint("Horizontal", 2),
    Sketcher.Constraint("Vertical", 3),
    Sketcher.Constraint("Horizontal", 4),
    Sketcher.Constraint("Vertical", 5),
    Sketcher.Constraint("Horizontal", 6),
    Sketcher.Constraint("Vertical", 7),
    Sketcher.Constraint("Horizontal", 0, 2, 3, 2),
    Sketcher.Constraint("Equal", 0, 4),
    Sketcher.Constraint("DistanceX", 0, 2, 0, 1, Q("2 mm")),
    Sketcher.Constraint("DistanceX", 2, 1, 2, 2, Q("29 mm")),
    Sketcher.Constraint("DistanceY", 1, 1, 1, 2, Q("33 mm")),
    Sketcher.Constraint("DistanceY", 5, 1, 5, 2, Q("31 mm")),
    Sketcher.Constraint("DistanceX", 0, 2, -1, 1, Q("17 mm")),
    Sketcher.Constraint("DistanceY", 0, 2, -1, 1, Q("37.25 mm")),
])
pad6 = body.newObject("PartDesign::Pad", "Pad005")
pad6.Profile = sketch9
pad6.Length = 2
pad6.Reversed = True

# Sketch on XZ plane
sketch10 = body.newObject("Sketcher::SketchObject", "Sketch009")
sketch10.AttachmentSupport = (doc.getObject("XZ_Plane"), [""])
sketch10.MapMode = "FlatFace"
sketch10.AttachmentOffset = App.Placement(V(0, 0, -3), App.Rotation())
add_polygon(sketch10, [(-53, -37), (-53, -32), (-48, -32), (-48, -37)])  # lines 0-3
add_polygon(sketch10, [(-53, 32), (-53, 37), (-48, 37), (-48, 32)])  # lines 4-7
sketch10.addConstraint([
    Sketcher.Constraint("Vertical", 0),
    Sketcher.Constraint("Horizontal", 1),
    Sketcher.Constraint("Vertical", 2),
    Sketcher.Constraint("Horizontal", 3),
    Sketcher.Constraint("Vertical", 4),
    Sketcher.Constraint("Horizontal", 5),
    Sketcher.Constraint("Vertical", 6),
    Sketcher.Constraint("Horizontal", 7),
    Sketcher.Constraint("Symmetric", 3, 2, 4, 2, -1),
    Sketcher.Constraint("Symmetric", 1, 2, 6, 2, -1),
    Sketcher.Constraint("Equal", 7, 0),
    Sketcher.Constraint("DistanceX", 1, 1, 1, 2, Q("5 mm")),
    Sketcher.Constraint("DistanceY", 0, 2, 4, 2, Q("69.5 mm")),
    Sketcher.Constraint("DistanceX", 0, 2, -1, 1, Q("53.25 mm")),
])
pocket4 = body.newObject("PartDesign::Pocket", "Pocket003")
pocket4.Profile = sketch10
pocket4.Length = 4
pocket4.Reversed = True

# Sketch on XZ plane
sketch11 = body.newObject("Sketcher::SketchObject", "Sketch010")
sketch11.AttachmentSupport = (doc.getObject("XZ_Plane"), [""])
sketch11.MapMode = "FlatFace"
sketch11.AttachmentOffset = App.Placement(V(0, 0, -3), App.Rotation())
add_polygon(sketch11, [(49.8, -38.1), (49.8, 37.2), (53.8, 37.2), (53.8, -38.1)])  # lines 0-3
sketch11.addConstraint([
    Sketcher.Constraint("Vertical", 0),
    Sketcher.Constraint("Horizontal", 1),
    Sketcher.Constraint("Vertical", 2),
    Sketcher.Constraint("Horizontal", 3),
    Sketcher.Constraint("DistanceX", 1, 1, 1, 2, Q("4 mm")),
    Sketcher.Constraint("DistanceX", -1, 1, 0, 2, Q("49.75 mm")),
    Sketcher.Constraint("DistanceY", -1, 1, 0, 2, Q("37.25 mm")),
    Sketcher.Constraint("DistanceY", 0, 1, 0, 2, Q("75.314058 mm")),
])
pocket5 = body.newObject("PartDesign::Pocket", "Pocket004")
pocket5.Profile = sketch11
pocket5.Length = 10
pocket5.Reversed = True

# Sketch on XZ plane
sketch12 = body.newObject("Sketcher::SketchObject", "Sketch011")
sketch12.AttachmentSupport = (doc.getObject("XZ_Plane"), [""])
sketch12.MapMode = "FlatFace"
sketch12.AttachmentOffset = App.Placement(V(0, 0, -3), App.Rotation())
sketch12.addGeometry([
    Part.Circle(V(15.5, -20.8, 0), V(0, 0, 1), 3),
    Part.Circle(V(15.5, -20.8, 0), V(0, 0, 1), 1.5),
    Part.Circle(V(-20.5, -20.8, 0), V(0, 0, 1), 3),
    Part.Circle(V(-20.5, -20.8, 0), V(0, 0, 1), 1.5),
], False)
sketch12.addConstraint([
    Sketcher.Constraint("Coincident", 1, 3, 0, 3),
    Sketcher.Constraint("Coincident", 3, 3, 2, 3),
    Sketcher.Constraint("Equal", 0, 2),
    Sketcher.Constraint("Equal", 1, 3),
    Sketcher.Constraint("Horizontal", 1, 3, 2, 3),
    Sketcher.Constraint("Diameter", 0, Q("6 mm")),
    Sketcher.Constraint("Diameter", 1, Q("3 mm")),
    Sketcher.Constraint("DistanceX", 2, 3, 0, 3, Q("36 mm")),
    Sketcher.Constraint("DistanceX", -1, 1, 0, 3, Q("15.5 mm")),
    Sketcher.Constraint("DistanceY", 0, 3, -1, 1, Q("20.75 mm")),
])
pad7 = body.newObject("PartDesign::Pad", "Pad006")
pad7.Profile = sketch12
pad7.Length = 3
pad7.Reversed = True

# Sketch on XZ plane
sketch13 = body.newObject("Sketcher::SketchObject", "Sketch012")
sketch13.AttachmentSupport = (doc.getObject("XZ_Plane"), [""])
sketch13.MapMode = "FlatFace"
sketch13.AttachmentOffset = App.Placement(V(0, 0, -3), App.Rotation())
sketch13.addGeometry([
    Part.Circle(V(15.5, -20.8, 0), V(0, 0, 1), 1.5),
    Part.Circle(V(-20.5, -20.8, 0), V(0, 0, 1), 1.5),
], False)
sketch13.addConstraint([
    Sketcher.Constraint("Equal", 0, 1),
    Sketcher.Constraint("Horizontal", 0, 3, 1, 3),
    Sketcher.Constraint("Diameter", 0, Q("3 mm")),
    Sketcher.Constraint("DistanceX", 1, 3, 0, 3, Q("36 mm")),
    Sketcher.Constraint("DistanceX", -1, 1, 0, 3, Q("15.5 mm")),
    Sketcher.Constraint("DistanceY", 0, 3, -1, 1, Q("20.75 mm")),
])
pocket6 = body.newObject("PartDesign::Pocket", "Pocket005")
pocket6.Profile = sketch13
pocket6.Length = 3
pocket6.Reversed = True

# Sketch on XZ plane
sketch14 = body.newObject("Sketcher::SketchObject", "Sketch013")
sketch14.AttachmentSupport = (doc.getObject("XZ_Plane"), [""])
sketch14.MapMode = "FlatFace"
sketch14.AttachmentOffset = App.Placement(V(0, 0, -3), App.Rotation())
sketch14.addGeometry(Part.Circle(V(38.2, 7.8, 0), V(0, 0, 1), 1.5), False)
sketch14.addConstraint([
    Sketcher.Constraint("Diameter", 0, Q("3 mm")),
    Sketcher.Constraint("DistanceX", -1, 1, 0, 3, Q("38.25 mm")),
    Sketcher.Constraint("DistanceY", -1, 1, 0, 3, Q("7.75 mm")),
])
pocket7 = body.newObject("PartDesign::Pocket", "Pocket006")
pocket7.Profile = sketch14
pocket7.Length = 3
pocket7.Reversed = True

# Sketch on XZ plane
sketch15 = body.newObject("Sketcher::SketchObject", "Sketch014")
sketch15.AttachmentSupport = (doc.getObject("XZ_Plane"), [""])
sketch15.MapMode = "FlatFace"
sketch15.AttachmentOffset = App.Placement(V(0, 0, -6), App.Rotation())
add_polygon(sketch15, [(3, -6.2), (3, -4.2), (10, -4.2), (10, -6.2)])  # lines 0-3
add_polygon(sketch15, [(-15, -6.2), (-15, -4.2), (-8, -4.2), (-8, -6.2)])  # lines 4-7
sketch15.addConstraint([
    Sketcher.Constraint("Vertical", 0),
    Sketcher.Constraint("Horizontal", 1),
    Sketcher.Constraint("Vertical", 2),
    Sketcher.Constraint("Horizontal", 3),
    Sketcher.Constraint("Vertical", 4),
    Sketcher.Constraint("Horizontal", 5),
    Sketcher.Constraint("Vertical", 6),
    Sketcher.Constraint("Horizontal", 7),
    Sketcher.Constraint("Horizontal", 1, 2, 4, 2),
    Sketcher.Constraint("Horizontal", 3, 2, 6, 2),
    Sketcher.Constraint("Equal", 3, 5),
    Sketcher.Constraint("DistanceX", 1, 1, 1, 2, Q("7 mm")),
    Sketcher.Constraint("DistanceY", 0, 1, 0, 2, Q("2 mm")),
    Sketcher.Constraint("DistanceX", -1, 1, 0, 2, Q("3 mm")),
    Sketcher.Constraint("DistanceX", 4, 2, -1, 1, Q("15 mm")),
    Sketcher.Constraint("DistanceY", 0, 2, -1, 1, Q("4.25 mm")),
])
pocket8 = body.newObject("PartDesign::Pocket", "Pocket007")
pocket8.Profile = sketch15
pocket8.Length = 3
pocket8.Reversed = True

# Sketch on XZ plane
sketch16 = body.newObject("Sketcher::SketchObject", "Sketch015")
sketch16.AttachmentSupport = (doc.getObject("XZ_Plane"), [""])
sketch16.MapMode = "FlatFace"
sketch16.AttachmentOffset = App.Placement(V(0, 0, -3), App.Rotation())
sketch16.addGeometry([
    Part.Circle(V(41, 34.2, 0), V(0, 0, 1), 1.5),
    Part.Circle(V(-44.7, 34.2, 0), V(0, 0, 1), 1.5),
], False)
sketch16.addConstraint([
    Sketcher.Constraint("Equal", 0, 1),
    Sketcher.Constraint("Horizontal", 0, 3, 1, 3),
    Sketcher.Constraint("Diameter", 0, Q("3 mm")),
    Sketcher.Constraint("DistanceY", -1, 1, 0, 3, Q("34.25 mm")),
    Sketcher.Constraint("DistanceX", 1, 3, -1, 1, Q("44.73 mm")),
    Sketcher.Constraint("DistanceX", -1, 1, 0, 3, Q("41.035 mm")),
])
pocket9 = body.newObject("PartDesign::Pocket", "Pocket008")
pocket9.Profile = sketch16
pocket9.Length = 3
pocket9.Reversed = True

# Sketch on XZ plane
sketch17 = body.newObject("Sketcher::SketchObject", "Sketch016")
sketch17.AttachmentSupport = (doc.getObject("XZ_Plane"), [""])
sketch17.MapMode = "FlatFace"
sketch17.AttachmentOffset = App.Placement(V(0, 0, -3), App.Rotation())
add_polygon(sketch17, [(46.8, -37.2), (46.8, 37.2), (49.8, 37.2), (49.8, -37.2)])  # lines 0-3
sketch17.addConstraint([
    Sketcher.Constraint("Vertical", 0),
    Sketcher.Constraint("Horizontal", 1),
    Sketcher.Constraint("Vertical", 2),
    Sketcher.Constraint("Horizontal", 3),
    Sketcher.Constraint("DistanceX", 1, 1, 1, 2, Q("3 mm")),
    Sketcher.Constraint("DistanceY", 0, 1, 0, 2, Q("74.5 mm")),
    Sketcher.Constraint("DistanceX", -1, 1, 0, 2, Q("46.75 mm")),
    Sketcher.Constraint("DistanceY", -1, 1, 0, 2, Q("37.25 mm")),
])
pocket10 = body.newObject("PartDesign::Pocket", "Pocket009")
pocket10.Profile = sketch17
pocket10.Length = 8
pocket10.Reversed = True

# Sketch on XZ plane
sketch18 = body.newObject("Sketcher::SketchObject", "Sketch017")
sketch18.AttachmentSupport = (doc.getObject("XZ_Plane"), [""])
sketch18.MapMode = "FlatFace"
sketch18.AttachmentOffset = App.Placement(V(0, 0, -3), App.Rotation())
add_polygon(sketch18, [(38.2, 22.2), (38.2, 37.2), (39.2, 37.2), (39.2, 22.2)])  # lines 0-3
sketch18.addConstraint([
    Sketcher.Constraint("Vertical", 0),
    Sketcher.Constraint("Horizontal", 1),
    Sketcher.Constraint("Vertical", 2),
    Sketcher.Constraint("Horizontal", 3),
    Sketcher.Constraint("DistanceX", 1, 1, 1, 2, Q("1 mm")),
    Sketcher.Constraint("DistanceY", 0, 1, 0, 2, Q("15 mm")),
    Sketcher.Constraint("DistanceX", -1, 1, 0, 2, Q("38.25 mm")),
    Sketcher.Constraint("DistanceY", -1, 1, 0, 2, Q("37.25 mm")),
])
pad8 = body.newObject("PartDesign::Pad", "Pad007")
pad8.Profile = sketch18
pad8.Length = 3

doc.recompute()
